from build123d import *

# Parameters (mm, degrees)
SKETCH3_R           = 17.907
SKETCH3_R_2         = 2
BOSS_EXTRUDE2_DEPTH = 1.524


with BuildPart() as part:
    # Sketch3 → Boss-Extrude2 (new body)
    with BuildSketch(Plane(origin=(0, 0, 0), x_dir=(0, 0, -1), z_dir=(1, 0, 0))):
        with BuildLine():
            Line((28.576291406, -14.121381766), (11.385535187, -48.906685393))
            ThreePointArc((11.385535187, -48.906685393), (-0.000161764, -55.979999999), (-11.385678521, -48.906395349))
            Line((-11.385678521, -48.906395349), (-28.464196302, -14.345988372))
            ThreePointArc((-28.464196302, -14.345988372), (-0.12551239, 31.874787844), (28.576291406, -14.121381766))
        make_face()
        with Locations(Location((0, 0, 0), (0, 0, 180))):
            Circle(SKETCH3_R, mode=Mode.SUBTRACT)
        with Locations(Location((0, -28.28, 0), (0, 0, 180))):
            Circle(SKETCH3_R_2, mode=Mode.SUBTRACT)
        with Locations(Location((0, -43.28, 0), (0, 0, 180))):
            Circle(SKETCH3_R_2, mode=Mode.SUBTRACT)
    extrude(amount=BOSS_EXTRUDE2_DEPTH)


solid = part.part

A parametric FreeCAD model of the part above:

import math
import FreeCAD as App
import Part
import Sketcher
from FreeCAD import Vector
Q = App.Units.Quantity

doc = App.newDocument("Part")
body = doc.addObject("PartDesign::Body", "Body")

# Sketch on YZ plane
sketch1 = body.newObject("Sketcher::SketchObject", "Sketch")
sketch1.AttachmentSupport = (doc.getObject("YZ_Plane"), [""])
sketch1.MapMode = "FlatFace"
sketch1.addGeometry([
    Part.LineSegment(Vector(-48.9, -11.4, 0), Vector(-14.1, -28.6, 0)),  # 0
    Part.ArcOfCircle(Part.Circle(Vector(0, 0, 0), Vector(0, 0, 1), 31.9), math.radians(-116), math.radians(117)),  # 1
    Part.LineSegment(Vector(-14.3, 28.5, 0), Vector(-48.9, 11.4, 0)),  # 2
    Part.ArcOfCircle(Part.Circle(Vector(-43.3, 0, 0), Vector(0, 0, 1), 12.7), math.radians(116), math.radians(244)),  # 3
    Part.Circle(Vector(-43.3, 0, 0), Vector(0, 0, 1), 2),  # 4
    Part.Circle(Vector(-28.3, 0, 0), Vector(0, 0, 1), 2),  # 5
    Part.Circle(Vector(0, 0, 0), Vector(0, 0, 1), 17.9),  # 6
], False)
sketch1.addConstraint([
    Sketcher.Constraint("Coincident", 0, 2, 1, 1),
    Sketcher.Constraint("Coincident", 1, 2, 2, 1),
    Sketcher.Constraint("Tangent", 2, 2, 3, 1),
    Sketcher.Constraint("Tangent", 3, 2, 0, 1),
    Sketcher.Constraint("Coincident", 1, 3, -1, 1),
    Sketcher.Constraint("Coincident", 6, 3, -1, 1),
    Sketcher.Constraint("Coincident", 4, 3, 3, 3),
    Sketcher.Constraint("Equal", 4, 5),
    Sketcher.Constraint("PointOnObject", 3, 3, -1),
    Sketcher.Constraint("PointOnObject", 5, 3, -1),
    Sketcher.Constraint("Radius", 3, Q("0.5 in")),
    Sketcher.Constraint("Diameter", 6, Q("1.41 in")),
    Sketcher.Constraint("Diameter", 4, Q("4 mm")),
    Sketcher.Constraint("Radius", 1, Q("31.875035 mm")),
    Sketcher.Constraint("DistanceX", 3, 2, 0, 2, Q("1.3695001 in")),
    Sketcher.Constraint("DistanceX", 3, 3, -1, 1, Q("43.28 mm")),
    Sketcher.Constraint("DistanceX", 5, 3, -1, 1, Q("28.28 mm")),
    Sketcher.Constraint("DistanceX", 1, 2, -1, 1, Q("14.345988 mm")),
])
pad1 = body.newObject("PartDesign::Pad", "Pad")
pad1.Profile = sketch1
pad1.Length = Q("0.06 in")

doc.recompute()
